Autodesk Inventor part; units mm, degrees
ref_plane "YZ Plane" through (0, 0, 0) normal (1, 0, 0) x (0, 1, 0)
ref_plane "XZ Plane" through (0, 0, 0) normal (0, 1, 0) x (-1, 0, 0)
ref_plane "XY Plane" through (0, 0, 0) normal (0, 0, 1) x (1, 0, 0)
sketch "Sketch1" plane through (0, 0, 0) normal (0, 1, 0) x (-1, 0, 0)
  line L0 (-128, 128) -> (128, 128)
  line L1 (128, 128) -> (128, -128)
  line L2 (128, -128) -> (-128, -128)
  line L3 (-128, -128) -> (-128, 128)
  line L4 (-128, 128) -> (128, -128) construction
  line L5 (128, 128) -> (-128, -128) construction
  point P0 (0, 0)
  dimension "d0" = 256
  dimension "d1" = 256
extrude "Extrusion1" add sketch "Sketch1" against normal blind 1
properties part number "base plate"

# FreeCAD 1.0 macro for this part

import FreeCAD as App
import Part
import Sketcher

V = App.Vector
Q = App.Units.Quantity

doc = App.newDocument("Part")
body = doc.addObject("PartDesign::Body", "Body")

sketch1 = doc.addObject("Sketcher::SketchObject", "Sketch")
body.addObject(sketch1)
sketch1.AttachmentSupport = (doc.XZ_Plane, [""])
sketch1.MapMode = "FlatFace"
sketch1.addGeometry(Part.LineSegment(V(-128, 128, 0), V(128, 128, 0)), False)
sketch1.addGeometry(Part.LineSegment(V(128, 128, 0), V(128, -128, 0)), False)
sketch1.addGeometry(Part.LineSegment(V(128, -128, 0), V(-128, -128, 0)), False)
sketch1.addGeometry(Part.LineSegment(V(-128, -128, 0), V(-128, 128, 0)), False)
sketch1.addConstraint(Sketcher.Constraint("Coincident", 0, 2, 1, 1))
sketch1.addConstraint(Sketcher.Constraint("Coincident", 1, 2, 2, 1))
sketch1.addConstraint(Sketcher.Constraint("Coincident", 2, 2, 3, 1))
sketch1.addConstraint(Sketcher.Constraint("Coincident", 3, 2, 0, 1))
sketch1.addConstraint(Sketcher.Constraint("Horizontal", 0))
sketch1.addConstraint(Sketcher.Constraint("Vertical", 1))
sketch1.addConstraint(Sketcher.Constraint("Horizontal", 2))
sketch1.addConstraint(Sketcher.Constraint("Vertical", 3))
sketch1.addConstraint(Sketcher.Constraint("Symmetric", 0, 2, 2, 2, -1, 1))
sketch1.addConstraint(Sketcher.Constraint("Equal", 2, 1))
sketch1.addConstraint(Sketcher.Constraint("DistanceX", 0, 1, 0, 2, Q("256 mm")))
pad1 = doc.addObject("PartDesign::Pad", "Pad")
body.addObject(pad1)
pad1.Profile = sketch1
pad1.Length = 1

doc.recompute()
